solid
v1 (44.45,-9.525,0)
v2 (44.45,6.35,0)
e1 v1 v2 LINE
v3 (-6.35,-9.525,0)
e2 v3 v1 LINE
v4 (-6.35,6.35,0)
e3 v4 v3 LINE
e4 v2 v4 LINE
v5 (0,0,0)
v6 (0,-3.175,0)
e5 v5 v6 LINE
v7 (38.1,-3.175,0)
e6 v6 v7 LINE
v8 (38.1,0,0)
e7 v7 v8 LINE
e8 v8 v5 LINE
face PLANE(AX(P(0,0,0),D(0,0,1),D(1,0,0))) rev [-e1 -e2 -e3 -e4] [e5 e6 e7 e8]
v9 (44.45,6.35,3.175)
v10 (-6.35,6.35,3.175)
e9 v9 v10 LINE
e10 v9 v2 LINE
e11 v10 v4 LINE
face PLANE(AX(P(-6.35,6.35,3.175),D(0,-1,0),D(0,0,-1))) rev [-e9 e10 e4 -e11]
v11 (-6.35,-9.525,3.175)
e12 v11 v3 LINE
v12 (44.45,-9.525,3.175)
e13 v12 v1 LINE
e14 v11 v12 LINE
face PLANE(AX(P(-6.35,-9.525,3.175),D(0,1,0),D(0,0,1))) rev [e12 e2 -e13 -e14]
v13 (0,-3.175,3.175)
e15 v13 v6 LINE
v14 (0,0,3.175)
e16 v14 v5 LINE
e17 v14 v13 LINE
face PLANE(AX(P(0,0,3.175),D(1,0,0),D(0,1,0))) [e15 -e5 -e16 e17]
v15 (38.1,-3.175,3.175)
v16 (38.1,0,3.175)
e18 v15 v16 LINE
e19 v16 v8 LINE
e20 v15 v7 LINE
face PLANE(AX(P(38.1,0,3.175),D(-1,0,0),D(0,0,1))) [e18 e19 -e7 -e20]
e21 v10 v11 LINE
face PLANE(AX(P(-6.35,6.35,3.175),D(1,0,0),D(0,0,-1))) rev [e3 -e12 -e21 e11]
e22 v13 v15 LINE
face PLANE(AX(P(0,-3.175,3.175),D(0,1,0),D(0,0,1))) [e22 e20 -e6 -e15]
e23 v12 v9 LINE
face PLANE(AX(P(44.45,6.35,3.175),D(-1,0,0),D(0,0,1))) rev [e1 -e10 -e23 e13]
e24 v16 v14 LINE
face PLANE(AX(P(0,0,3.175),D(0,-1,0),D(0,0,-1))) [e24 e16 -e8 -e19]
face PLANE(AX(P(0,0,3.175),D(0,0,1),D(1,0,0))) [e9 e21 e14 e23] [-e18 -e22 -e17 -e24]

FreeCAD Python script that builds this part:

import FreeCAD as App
import Part
import Sketcher
from FreeCAD import Vector
Q = App.Units.Quantity

doc = App.newDocument("Part")
body = doc.addObject("PartDesign::Body", "Body")

sketch1 = body.newObject("Sketcher::SketchObject", "Sketch")
sketch1.AttachmentSupport = (doc.getObject("XY_Plane"), [""])
sketch1.MapMode = "FlatFace"
sketch1.addGeometry([
    Part.LineSegment(Vector(-6.3, 6.3, 0), Vector(-6.3, -9.5, 0)),
    Part.LineSegment(Vector(-6.3, -9.5, 0), Vector(44.5, -9.5, 0)),
    Part.LineSegment(Vector(44.5, -9.5, 0), Vector(44.5, 6.3, 0)),
    Part.LineSegment(Vector(44.5, 6.3, 0), Vector(-6.3, 6.3, 0)),
    Part.LineSegment(Vector(38.1, -3.2, 0), Vector(0, -3.2, 0)),
    Part.LineSegment(Vector(0, -3.2, 0), Vector(0, 0, 0)),
    Part.LineSegment(Vector(0, 0, 0), Vector(38.1, 0, 0)),
    Part.LineSegment(Vector(38.1, 0, 0), Vector(38.1, -3.2, 0)),
], False)
sketch1.addConstraint([
    Sketcher.Constraint("Coincident", 0, 2, 1, 1),
    Sketcher.Constraint("Coincident", 1, 2, 2, 1),
    Sketcher.Constraint("Coincident", 2, 2, 3, 1),
    Sketcher.Constraint("Coincident", 3, 2, 0, 1),
    Sketcher.Constraint("Coincident", 4, 2, 5, 1),
    Sketcher.Constraint("Coincident", 5, 2, 6, 1),
    Sketcher.Constraint("Coincident", 6, 2, 7, 1),
    Sketcher.Constraint("Coincident", 7, 2, 4, 1),
    Sketcher.Constraint("Vertical", 0),
    Sketcher.Constraint("Horizontal", 1),
    Sketcher.Constraint("Vertical", 2),
    Sketcher.Constraint("Horizontal", 3),
    Sketcher.Constraint("Horizontal", 4),
    Sketcher.Constraint("Vertical", 5),
    Sketcher.Constraint("Horizontal", 6),
    Sketcher.Constraint("Vertical", 7),
    Sketcher.Constraint("Coincident", 5, 2, -1, 1),
    Sketcher.Constraint("DistanceX", 1, 1, 1, 2, Q("2 in")),
    Sketcher.Constraint("DistanceX", 4, 2, 4, 1, Q("1.5 in")),
    Sketcher.Constraint("DistanceY", 0, 2, 0, 1, Q("0.625 in")),
    Sketcher.Constraint("DistanceY", 5, 1, 5, 2, Q("0.125 in")),
    Sketcher.Constraint("DistanceX", 0, 2, -1, 1, Q("0.25 in")),
    Sketcher.Constraint("DistanceY", -1, 1, 2, 2, Q("0.25 in")),
])
pad1 = body.newObject("PartDesign::Pad", "Pad")
pad1.Profile = sketch1
pad1.Length = Q("0.125 in")

doc.recompute()
